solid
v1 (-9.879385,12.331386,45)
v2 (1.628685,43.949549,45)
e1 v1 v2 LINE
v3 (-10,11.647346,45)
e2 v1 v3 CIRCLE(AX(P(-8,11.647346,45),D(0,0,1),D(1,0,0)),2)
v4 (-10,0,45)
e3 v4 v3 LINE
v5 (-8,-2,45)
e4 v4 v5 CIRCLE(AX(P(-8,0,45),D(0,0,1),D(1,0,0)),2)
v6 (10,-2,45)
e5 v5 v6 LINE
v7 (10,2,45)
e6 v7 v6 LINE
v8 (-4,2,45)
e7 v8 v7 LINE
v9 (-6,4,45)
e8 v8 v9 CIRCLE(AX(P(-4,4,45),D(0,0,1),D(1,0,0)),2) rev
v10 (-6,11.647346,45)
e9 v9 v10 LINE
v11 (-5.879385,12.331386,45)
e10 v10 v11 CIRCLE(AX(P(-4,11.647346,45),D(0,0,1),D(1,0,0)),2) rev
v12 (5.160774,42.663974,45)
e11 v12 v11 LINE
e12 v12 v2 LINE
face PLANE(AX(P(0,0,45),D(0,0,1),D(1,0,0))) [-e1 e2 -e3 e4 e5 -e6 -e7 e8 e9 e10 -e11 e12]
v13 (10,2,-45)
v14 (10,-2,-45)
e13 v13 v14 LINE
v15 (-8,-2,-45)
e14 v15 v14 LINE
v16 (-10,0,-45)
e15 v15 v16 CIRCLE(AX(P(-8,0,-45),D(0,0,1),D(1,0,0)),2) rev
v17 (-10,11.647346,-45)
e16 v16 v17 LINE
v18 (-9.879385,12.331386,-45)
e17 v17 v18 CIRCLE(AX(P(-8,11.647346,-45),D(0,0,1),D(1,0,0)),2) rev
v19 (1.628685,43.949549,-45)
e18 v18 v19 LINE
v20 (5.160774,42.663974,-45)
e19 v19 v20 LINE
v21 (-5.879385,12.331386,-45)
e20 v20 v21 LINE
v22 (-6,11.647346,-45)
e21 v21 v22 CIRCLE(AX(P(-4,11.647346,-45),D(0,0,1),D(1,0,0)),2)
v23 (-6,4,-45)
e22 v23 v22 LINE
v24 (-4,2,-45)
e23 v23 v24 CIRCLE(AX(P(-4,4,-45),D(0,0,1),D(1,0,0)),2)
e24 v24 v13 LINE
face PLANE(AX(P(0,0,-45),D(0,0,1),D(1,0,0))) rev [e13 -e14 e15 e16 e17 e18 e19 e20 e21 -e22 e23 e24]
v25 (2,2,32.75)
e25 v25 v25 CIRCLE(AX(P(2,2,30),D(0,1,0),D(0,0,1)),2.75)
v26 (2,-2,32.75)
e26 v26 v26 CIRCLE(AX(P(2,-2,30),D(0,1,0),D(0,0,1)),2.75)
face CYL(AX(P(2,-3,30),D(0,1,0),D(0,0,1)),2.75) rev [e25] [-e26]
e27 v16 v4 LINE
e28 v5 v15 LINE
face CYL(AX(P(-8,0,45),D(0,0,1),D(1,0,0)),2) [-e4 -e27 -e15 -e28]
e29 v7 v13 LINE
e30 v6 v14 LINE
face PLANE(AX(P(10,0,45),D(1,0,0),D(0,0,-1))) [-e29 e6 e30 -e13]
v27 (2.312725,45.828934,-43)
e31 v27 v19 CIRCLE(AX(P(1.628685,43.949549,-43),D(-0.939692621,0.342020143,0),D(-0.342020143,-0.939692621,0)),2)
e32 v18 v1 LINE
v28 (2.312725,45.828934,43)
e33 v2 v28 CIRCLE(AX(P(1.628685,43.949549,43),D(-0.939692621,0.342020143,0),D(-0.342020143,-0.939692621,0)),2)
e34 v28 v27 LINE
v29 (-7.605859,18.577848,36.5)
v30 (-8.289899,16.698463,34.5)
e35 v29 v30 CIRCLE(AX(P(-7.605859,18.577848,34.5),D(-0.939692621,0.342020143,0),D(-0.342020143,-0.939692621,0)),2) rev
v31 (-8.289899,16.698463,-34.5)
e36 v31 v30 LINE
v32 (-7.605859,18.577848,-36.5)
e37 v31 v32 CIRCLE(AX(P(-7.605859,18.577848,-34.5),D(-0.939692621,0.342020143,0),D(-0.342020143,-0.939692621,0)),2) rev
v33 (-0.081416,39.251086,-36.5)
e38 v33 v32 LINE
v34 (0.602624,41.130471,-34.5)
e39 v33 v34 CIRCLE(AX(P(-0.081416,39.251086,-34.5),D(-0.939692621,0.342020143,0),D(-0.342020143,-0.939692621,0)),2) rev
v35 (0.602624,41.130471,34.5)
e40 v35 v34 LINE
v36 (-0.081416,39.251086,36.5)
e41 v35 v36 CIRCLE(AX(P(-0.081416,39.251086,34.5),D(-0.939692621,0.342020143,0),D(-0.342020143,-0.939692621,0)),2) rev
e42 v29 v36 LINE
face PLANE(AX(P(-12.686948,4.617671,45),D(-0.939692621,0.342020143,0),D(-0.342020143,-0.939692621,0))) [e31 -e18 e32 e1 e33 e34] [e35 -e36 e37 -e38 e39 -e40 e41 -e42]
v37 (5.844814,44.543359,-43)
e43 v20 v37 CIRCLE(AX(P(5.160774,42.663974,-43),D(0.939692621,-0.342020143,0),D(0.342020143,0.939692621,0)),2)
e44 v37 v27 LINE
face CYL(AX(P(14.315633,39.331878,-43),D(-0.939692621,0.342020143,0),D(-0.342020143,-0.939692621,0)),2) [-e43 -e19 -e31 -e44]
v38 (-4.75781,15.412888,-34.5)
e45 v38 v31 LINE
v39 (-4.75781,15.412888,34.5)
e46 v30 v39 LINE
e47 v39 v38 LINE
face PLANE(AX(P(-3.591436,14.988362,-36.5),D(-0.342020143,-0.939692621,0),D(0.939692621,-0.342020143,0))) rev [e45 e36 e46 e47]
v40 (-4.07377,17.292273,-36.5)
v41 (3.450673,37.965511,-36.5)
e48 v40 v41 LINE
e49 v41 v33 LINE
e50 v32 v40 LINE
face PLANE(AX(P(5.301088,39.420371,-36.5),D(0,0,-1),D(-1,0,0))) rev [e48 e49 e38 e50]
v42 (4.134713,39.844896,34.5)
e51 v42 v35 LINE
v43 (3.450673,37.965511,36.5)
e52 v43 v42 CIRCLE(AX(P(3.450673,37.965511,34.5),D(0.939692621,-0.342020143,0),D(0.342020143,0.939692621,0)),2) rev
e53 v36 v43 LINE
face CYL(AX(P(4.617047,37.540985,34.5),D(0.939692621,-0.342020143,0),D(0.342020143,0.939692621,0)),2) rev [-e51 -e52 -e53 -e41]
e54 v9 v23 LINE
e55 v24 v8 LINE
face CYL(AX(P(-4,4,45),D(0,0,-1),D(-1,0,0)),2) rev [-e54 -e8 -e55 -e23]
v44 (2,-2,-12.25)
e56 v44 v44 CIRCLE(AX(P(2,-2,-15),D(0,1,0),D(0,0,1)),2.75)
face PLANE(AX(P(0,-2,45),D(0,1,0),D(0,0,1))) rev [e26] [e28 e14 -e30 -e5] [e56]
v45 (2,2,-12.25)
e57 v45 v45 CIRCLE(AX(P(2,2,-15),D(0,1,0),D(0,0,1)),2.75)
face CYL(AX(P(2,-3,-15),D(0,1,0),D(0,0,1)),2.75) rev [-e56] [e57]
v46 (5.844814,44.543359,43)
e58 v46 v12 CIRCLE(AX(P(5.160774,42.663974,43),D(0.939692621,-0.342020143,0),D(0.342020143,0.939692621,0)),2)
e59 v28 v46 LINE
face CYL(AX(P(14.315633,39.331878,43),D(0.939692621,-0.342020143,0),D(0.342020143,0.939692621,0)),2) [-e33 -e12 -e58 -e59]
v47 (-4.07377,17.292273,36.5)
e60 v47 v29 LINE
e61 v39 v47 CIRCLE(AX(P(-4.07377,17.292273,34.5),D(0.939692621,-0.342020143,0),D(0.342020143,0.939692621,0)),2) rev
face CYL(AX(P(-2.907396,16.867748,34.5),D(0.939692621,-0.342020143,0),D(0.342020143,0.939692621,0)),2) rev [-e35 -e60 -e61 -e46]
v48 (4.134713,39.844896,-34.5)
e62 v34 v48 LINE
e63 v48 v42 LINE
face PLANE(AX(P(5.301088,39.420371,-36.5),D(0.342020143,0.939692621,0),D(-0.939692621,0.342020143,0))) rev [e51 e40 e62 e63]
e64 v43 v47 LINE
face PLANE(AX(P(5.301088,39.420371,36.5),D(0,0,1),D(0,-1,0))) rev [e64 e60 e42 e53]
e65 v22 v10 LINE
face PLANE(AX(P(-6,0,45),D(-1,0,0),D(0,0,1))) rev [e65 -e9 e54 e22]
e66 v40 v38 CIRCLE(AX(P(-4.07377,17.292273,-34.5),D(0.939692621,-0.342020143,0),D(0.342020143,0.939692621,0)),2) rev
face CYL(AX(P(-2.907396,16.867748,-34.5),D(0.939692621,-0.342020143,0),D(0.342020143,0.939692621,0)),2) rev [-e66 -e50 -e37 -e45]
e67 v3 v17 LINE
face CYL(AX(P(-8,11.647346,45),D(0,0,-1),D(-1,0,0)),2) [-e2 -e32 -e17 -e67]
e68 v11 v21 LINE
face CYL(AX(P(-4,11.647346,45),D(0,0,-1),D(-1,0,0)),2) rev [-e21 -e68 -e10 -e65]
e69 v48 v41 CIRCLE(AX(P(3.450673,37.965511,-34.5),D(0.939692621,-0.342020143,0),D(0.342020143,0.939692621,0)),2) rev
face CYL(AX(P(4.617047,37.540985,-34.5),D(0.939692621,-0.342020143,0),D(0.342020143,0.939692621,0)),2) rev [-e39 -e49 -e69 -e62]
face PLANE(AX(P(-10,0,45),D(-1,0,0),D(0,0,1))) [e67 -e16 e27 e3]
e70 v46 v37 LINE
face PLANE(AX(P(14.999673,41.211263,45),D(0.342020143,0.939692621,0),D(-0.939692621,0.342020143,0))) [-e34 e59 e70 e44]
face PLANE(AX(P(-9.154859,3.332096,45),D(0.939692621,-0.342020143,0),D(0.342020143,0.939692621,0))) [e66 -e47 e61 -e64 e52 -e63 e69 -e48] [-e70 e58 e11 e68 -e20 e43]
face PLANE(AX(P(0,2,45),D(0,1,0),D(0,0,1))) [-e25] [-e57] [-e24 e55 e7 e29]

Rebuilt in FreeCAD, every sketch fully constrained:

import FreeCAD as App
import Part
import Sketcher
from FreeCAD import Vector
Q = App.Units.Quantity


def edges_at(feature, points):
    """Names of the edges that pass closest to the given points."""
    edges = feature.Shape.Edges
    near = lambda p: min(range(len(edges)), key=lambda i: edges[i].distToShape(Part.Vertex(*p))[0])
    return sorted({f"Edge{near(p) + 1}" for p in points})


def add_polygon(sketch, points):
    """Adds a closed chain of lines whose ends are joined by coincident constraints."""
    first, n = sketch.GeometryCount, len(points)
    for a, b in zip(points, points[1:] + points[:1]):
        sketch.addGeometry(Part.LineSegment(App.Vector(*a, 0), App.Vector(*b, 0)), False)
    for i in range(n):
        sketch.addConstraint(Sketcher.Constraint("Coincident", first + i, 2, first + (i + 1) % n, 1))

doc = App.newDocument("Part")
body = doc.addObject("PartDesign::Body", "Body")

sketch1 = body.newObject("Sketcher::SketchObject", "Sketch")
sketch1.AttachmentSupport = (doc.getObject("XY_Plane"), [""])
sketch1.MapMode = "FlatFace"
add_polygon(sketch1, [(-6, 12), (5.8, 44.5), (2.3, 45.8), (-10, 12), (-10, -2), (10, -2), (10, 2), (-6, 2)])
sketch1.addConstraint([
    Sketcher.Constraint("Vertical", 3),
    Sketcher.Constraint("Horizontal", 4),
    Sketcher.Constraint("Vertical", 5),
    Sketcher.Constraint("Horizontal", 6),
    Sketcher.Constraint("Vertical", 7),
    Sketcher.Constraint("Symmetric", 3, 2, 5, 2, -1, 1),
    Sketcher.Constraint("Perpendicular", 0, 1),
    Sketcher.Constraint("Perpendicular", 1, 2),
    Sketcher.Constraint("Horizontal", 2, 2, 7, 2),
    Sketcher.Constraint("DistanceX", 4, 1, 4, 2, Q("20 mm")),
    Sketcher.Constraint("DistanceX", 6, 2, 6, 1, Q("16 mm")),
    Sketcher.Constraint("DistanceY", 3, 2, 3, 1, Q("14 mm")),
    Sketcher.Constraint("DistanceY", 5, 1, 5, 2, Q("4 mm")),
    Sketcher.Constraint("Angle", 0, Q("70 deg")),
    Sketcher.Constraint("Distance", 2, Q("36 mm")),
])
pad1 = body.newObject("PartDesign::Pad", "Pad")
pad1.Profile = sketch1
pad1.Length = 90
pad1.Midplane = True

sketch2 = body.newObject("Sketcher::SketchObject", "Sketch001")
sketch2.Placement = App.Placement(Vector(-12.686948, 4.617671, 0), App.Rotation(Vector(0, 0, 1), Vector(0.342020143, 0.939692621, 0), Vector(-0.939692621, 0.342020143, 0), "ZXY"))
add_polygon(sketch2, [(-36, 39), (-36, 13), (36, 13), (36, 39)])
sketch2.addConstraint([
    Sketcher.Constraint("Vertical", 0),
    Sketcher.Constraint("Horizontal", 1),
    Sketcher.Constraint("Vertical", 2),
    Sketcher.Constraint("Horizontal", 3),
    Sketcher.Constraint("DistanceX", 1, 1, 1, 2, Q("73 mm")),
    Sketcher.Constraint("DistanceY", 0, 2, 0, 1, Q("26 mm")),
    Sketcher.Constraint("DistanceX", 0, 2, -1, 1, Q("36.5 mm")),
    Sketcher.Constraint("DistanceY", -1, 1, 0, 2, Q("12.85611 mm")),
])
pocket1 = body.newObject("PartDesign::Pocket", "Pocket")
pocket1.Profile = sketch2
pocket1.Length = 5
doc.recompute()

fillet = body.newObject("PartDesign::Fillet", "Fillet")
fillet.Base = (pocket1, edges_at(pocket1, [
    (4.079, 45.186, 45),
    (4.079, 45.186, -45),
    (-6, 12, 0),
    (-6, 2, 0),
    (-10, -2, 0),
    (-10, 12, 0),
    (2.369, 40.488, 36.5),
    (-6.524, 16.056, 36.5),
    (-6.524, 16.056, -36.5),
    (2.369, 40.488, -36.5),
]))
fillet.Radius = 2

sketch3 = body.newObject("Sketcher::SketchObject", "Sketch002")
sketch3.AttachmentSupport = (doc.getObject("XZ_Plane"), [""])
sketch3.MapMode = "FlatFace"
sketch3.AttachmentOffset = App.Placement(Vector(0, 0, -2), App.Rotation())
sketch3.addGeometry([
    Part.Circle(Vector(2, 30, 0), Vector(0, 0, 1), 2.8),
    Part.Circle(Vector(2, -15, 0), Vector(0, 0, 1), 2.8),
], False)
sketch3.addConstraint([
    Sketcher.Constraint("Equal", 0, 1),
    Sketcher.Constraint("Vertical", 0, 3, 1, 3),
    Sketcher.Constraint("Diameter", 0, Q("5.5 mm")),
    Sketcher.Constraint("DistanceX", -1, 1, 0, 3, Q("2 mm")),
    Sketcher.Constraint("DistanceY", -1, 1, 0, 3, Q("30 mm")),
    Sketcher.Constraint("DistanceY", 1, 3, -1, 1, Q("15 mm")),
])
pocket2 = body.newObject("PartDesign::Pocket", "Pocket001")
pocket2.Profile = sketch3
pocket2.Length = 5
pocket2.Reversed = True

doc.recompute()
